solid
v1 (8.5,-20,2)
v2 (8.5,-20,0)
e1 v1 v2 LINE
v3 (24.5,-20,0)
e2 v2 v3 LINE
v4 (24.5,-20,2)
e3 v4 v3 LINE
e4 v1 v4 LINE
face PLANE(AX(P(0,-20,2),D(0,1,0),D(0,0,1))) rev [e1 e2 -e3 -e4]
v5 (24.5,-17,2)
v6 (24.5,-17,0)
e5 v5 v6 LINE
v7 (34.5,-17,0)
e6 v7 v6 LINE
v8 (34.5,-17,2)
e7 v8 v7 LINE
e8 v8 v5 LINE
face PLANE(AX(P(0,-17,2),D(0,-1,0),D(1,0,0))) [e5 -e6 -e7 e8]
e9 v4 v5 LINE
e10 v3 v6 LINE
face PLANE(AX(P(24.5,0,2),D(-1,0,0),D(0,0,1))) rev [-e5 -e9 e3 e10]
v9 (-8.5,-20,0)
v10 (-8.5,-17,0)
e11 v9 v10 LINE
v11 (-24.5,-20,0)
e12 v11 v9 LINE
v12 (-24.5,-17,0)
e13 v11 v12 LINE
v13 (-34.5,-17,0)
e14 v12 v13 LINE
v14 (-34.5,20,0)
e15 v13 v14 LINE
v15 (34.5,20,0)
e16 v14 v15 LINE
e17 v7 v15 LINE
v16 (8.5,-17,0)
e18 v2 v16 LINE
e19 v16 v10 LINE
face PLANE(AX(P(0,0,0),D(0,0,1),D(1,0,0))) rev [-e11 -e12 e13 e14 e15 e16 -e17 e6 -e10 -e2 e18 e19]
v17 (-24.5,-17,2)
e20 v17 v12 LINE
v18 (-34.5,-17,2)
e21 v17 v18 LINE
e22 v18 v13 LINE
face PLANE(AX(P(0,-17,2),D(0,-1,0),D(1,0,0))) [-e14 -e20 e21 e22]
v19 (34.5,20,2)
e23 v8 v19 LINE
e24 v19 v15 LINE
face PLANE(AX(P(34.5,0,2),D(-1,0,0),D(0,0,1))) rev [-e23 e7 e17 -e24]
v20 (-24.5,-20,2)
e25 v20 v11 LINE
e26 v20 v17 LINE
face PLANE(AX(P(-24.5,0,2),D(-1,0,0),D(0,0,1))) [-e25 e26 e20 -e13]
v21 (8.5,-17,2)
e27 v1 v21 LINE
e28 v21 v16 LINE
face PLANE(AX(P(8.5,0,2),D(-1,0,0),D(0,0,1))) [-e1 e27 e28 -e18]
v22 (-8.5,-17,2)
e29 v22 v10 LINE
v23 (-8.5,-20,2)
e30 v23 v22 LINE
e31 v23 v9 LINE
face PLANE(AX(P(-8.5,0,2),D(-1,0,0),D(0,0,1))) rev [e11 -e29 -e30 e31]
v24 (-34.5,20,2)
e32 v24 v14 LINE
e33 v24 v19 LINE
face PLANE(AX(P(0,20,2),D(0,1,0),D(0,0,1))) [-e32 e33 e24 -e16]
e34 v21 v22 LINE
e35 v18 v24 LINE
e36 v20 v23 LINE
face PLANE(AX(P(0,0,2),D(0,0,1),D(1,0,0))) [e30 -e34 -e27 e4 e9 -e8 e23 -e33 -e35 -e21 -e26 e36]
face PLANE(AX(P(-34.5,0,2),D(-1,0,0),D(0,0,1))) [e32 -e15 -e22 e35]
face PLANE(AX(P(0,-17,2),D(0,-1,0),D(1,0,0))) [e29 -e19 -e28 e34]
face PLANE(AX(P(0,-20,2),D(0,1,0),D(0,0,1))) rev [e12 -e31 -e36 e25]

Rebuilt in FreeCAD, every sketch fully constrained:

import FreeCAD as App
import Part
import Sketcher

V = App.Vector
Q = App.Units.Quantity


def add_polygon(sketch, points):
    """Adds a closed chain of lines whose ends are joined by coincident constraints."""
    first, n = sketch.GeometryCount, len(points)
    for a, b in zip(points, points[1:] + points[:1]):
        sketch.addGeometry(Part.LineSegment(App.Vector(*a, 0), App.Vector(*b, 0)), False)
    for i in range(n):
        sketch.addConstraint(Sketcher.Constraint("Coincident", first + i, 2, first + (i + 1) % n, 1))

doc = App.newDocument("Part")
body = doc.addObject("PartDesign::Body", "Body")

# Sketch on XY plane
sketch1 = body.newObject("Sketcher::SketchObject", "Sketch")
sketch1.AttachmentSupport = (doc.getObject("XY_Plane"), [""])
sketch1.MapMode = "FlatFace"
add_polygon(sketch1, [(-24.5, -17), (-24.5, -20), (-8.5, -20), (-8.5, -17), (8.5, -17), (8.5, -20), (24.5, -20), (24.5, -17), (34.5, -17), (34.5, 20), (-34.5, 20), (-34.5, -17)])  # lines 0-11
sketch1.addConstraint(Sketcher.Constraint("Vertical", 0))
sketch1.addConstraint(Sketcher.Constraint("Horizontal", 1))
sketch1.addConstraint(Sketcher.Constraint("Vertical", 2))
sketch1.addConstraint(Sketcher.Constraint("Horizontal", 3))
sketch1.addConstraint(Sketcher.Constraint("Vertical", 4))
sketch1.addConstraint(Sketcher.Constraint("Horizontal", 5))
sketch1.addConstraint(Sketcher.Constraint("Vertical", 6))
sketch1.addConstraint(Sketcher.Constraint("Horizontal", 7))
sketch1.addConstraint(Sketcher.Constraint("Vertical", 8))
sketch1.addConstraint(Sketcher.Constraint("Horizontal", 9))
sketch1.addConstraint(Sketcher.Constraint("Vertical", 10))
sketch1.addConstraint(Sketcher.Constraint("Horizontal", 11))
sketch1.addConstraint(Sketcher.Constraint("Symmetric", 1, 2, 4, 2, -2))
sketch1.addConstraint(Sketcher.Constraint("Symmetric", 7, 2, 10, 2, -2))
sketch1.addConstraint(Sketcher.Constraint("Horizontal", 3, 2, 6, 2))
sketch1.addConstraint(Sketcher.Constraint("Equal", 1, 5))
sketch1.addConstraint(Sketcher.Constraint("DistanceX", 1, 1, 1, 2, Q("16 mm")))
sketch1.addConstraint(Sketcher.Constraint("DistanceX", 3, 1, 3, 2, Q("17 mm")))
sketch1.addConstraint(Sketcher.Constraint("DistanceX", 7, 1, 7, 2, Q("10 mm")))
sketch1.addConstraint(Sketcher.Constraint("DistanceY", 0, 2, 0, 1, Q("3 mm")))
sketch1.addConstraint(Sketcher.Constraint("DistanceY", 8, 1, 8, 2, Q("37 mm")))
sketch1.addConstraint(Sketcher.Constraint("DistanceY", 0, 2, -1, 1, Q("20 mm")))
pad1 = body.newObject("PartDesign::Pad", "Pad")
pad1.Profile = sketch1
pad1.Length = 2

doc.recompute()
